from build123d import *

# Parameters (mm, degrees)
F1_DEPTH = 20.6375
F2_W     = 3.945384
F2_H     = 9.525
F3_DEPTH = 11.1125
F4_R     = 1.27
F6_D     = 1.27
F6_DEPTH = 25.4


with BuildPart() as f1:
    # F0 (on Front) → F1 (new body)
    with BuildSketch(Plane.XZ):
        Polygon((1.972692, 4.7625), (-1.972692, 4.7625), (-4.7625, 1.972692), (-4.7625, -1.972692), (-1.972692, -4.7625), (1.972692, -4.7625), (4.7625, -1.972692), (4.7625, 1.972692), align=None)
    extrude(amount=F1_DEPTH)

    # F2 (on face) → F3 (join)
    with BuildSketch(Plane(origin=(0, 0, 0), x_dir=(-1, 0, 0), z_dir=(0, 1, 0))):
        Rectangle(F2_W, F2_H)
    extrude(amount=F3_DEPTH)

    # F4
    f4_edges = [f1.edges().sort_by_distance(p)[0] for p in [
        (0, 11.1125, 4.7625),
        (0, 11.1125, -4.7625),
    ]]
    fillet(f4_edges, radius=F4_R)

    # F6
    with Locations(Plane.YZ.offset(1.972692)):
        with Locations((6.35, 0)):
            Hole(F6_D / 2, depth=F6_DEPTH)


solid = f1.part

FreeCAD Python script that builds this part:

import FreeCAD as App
import Part
import Sketcher
from FreeCAD import Vector
Q = App.Units.Quantity


def edges_at(feature, points):
    """Names of the edges that pass closest to the given points."""
    edges = feature.Shape.Edges
    near = lambda p: min(range(len(edges)), key=lambda i: edges[i].distToShape(Part.Vertex(*p))[0])
    return sorted({f"Edge{near(p) + 1}" for p in points})

doc = App.newDocument("Part")
body = doc.addObject("PartDesign::Body", "Body")

sketch1 = body.newObject("Sketcher::SketchObject", "Sketch")
sketch1.AttachmentSupport = (doc.getObject("XZ_Plane"), [""])
sketch1.MapMode = "FlatFace"
sketch1.addGeometry([
    Part.LineSegment(Vector(2, 4.8, 0), Vector(-2, 4.8, 0)),
    Part.LineSegment(Vector(-2, 4.8, 0), Vector(-4.8, 2, 0)),
    Part.LineSegment(Vector(-4.8, 2, 0), Vector(-4.8, -2, 0)),
    Part.LineSegment(Vector(-4.8, -2, 0), Vector(-2, -4.8, 0)),
    Part.LineSegment(Vector(-2, -4.8, 0), Vector(2, -4.8, 0)),
    Part.LineSegment(Vector(2, -4.8, 0), Vector(4.8, -2, 0)),
    Part.LineSegment(Vector(4.8, -2, 0), Vector(4.8, 2, 0)),
    Part.LineSegment(Vector(4.8, 2, 0), Vector(2, 4.8, 0)),
], False)
sketch1.addConstraint([
    Sketcher.Constraint("Coincident", 0, 2, 1, 1),
    Sketcher.Constraint("Coincident", 1, 2, 2, 1),
    Sketcher.Constraint("Coincident", 2, 2, 3, 1),
    Sketcher.Constraint("Coincident", 3, 2, 4, 1),
    Sketcher.Constraint("Coincident", 4, 2, 5, 1),
    Sketcher.Constraint("Coincident", 5, 2, 6, 1),
    Sketcher.Constraint("Coincident", 6, 2, 7, 1),
    Sketcher.Constraint("Coincident", 7, 2, 0, 1),
    Sketcher.Constraint("Horizontal", 0),
    Sketcher.Constraint("Vertical", 2),
    Sketcher.Constraint("Horizontal", 4),
    Sketcher.Constraint("Vertical", 6),
    Sketcher.Constraint("Symmetric", 0, 2, 4, 2, -1, 1),
    Sketcher.Constraint("Symmetric", 1, 2, 5, 2, -1, 1),
    Sketcher.Constraint("Perpendicular", 1, 3),
    Sketcher.Constraint("Perpendicular", 5, 7),
    Sketcher.Constraint("Horizontal", 2, 2, 5, 2),
    Sketcher.Constraint("Horizontal", 1, 2, 6, 2),
    Sketcher.Constraint("Vertical", 0, 2, 3, 2),
    Sketcher.Constraint("Equal", 4, 2),
    Sketcher.Constraint("DistanceY", -1, 1, 0, 2, Q("0.1875 in")),
    Sketcher.Constraint("DistanceX", 0, 2, 0, 1, Q("3.945384 mm")),
])
pad1 = body.newObject("PartDesign::Pad", "Pad")
pad1.Profile = sketch1
pad1.Length = Q("0.8125 in")

sketch2 = body.newObject("Sketcher::SketchObject", "Sketch001")
sketch2.AttachmentSupport = (doc.getObject("XZ_Plane"), [""])
sketch2.MapMode = "FlatFace"
sketch2.addGeometry([
    Part.LineSegment(Vector(2, 4.8, 0), Vector(2, -4.8, 0)),
    Part.LineSegment(Vector(2, -4.8, 0), Vector(-2, -4.8, 0)),
    Part.LineSegment(Vector(-2, -4.8, 0), Vector(-2, 4.8, 0)),
    Part.LineSegment(Vector(-2, 4.8, 0), Vector(2, 4.8, 0)),
], False)
sketch2.addConstraint([
    Sketcher.Constraint("Coincident", 0, 2, 1, 1),
    Sketcher.Constraint("Coincident", 1, 2, 2, 1),
    Sketcher.Constraint("Coincident", 2, 2, 3, 1),
    Sketcher.Constraint("Coincident", 3, 2, 0, 1),
    Sketcher.Constraint("Vertical", 0),
    Sketcher.Constraint("Horizontal", 1),
    Sketcher.Constraint("Vertical", 2),
    Sketcher.Constraint("Horizontal", 3),
    Sketcher.Constraint("Symmetric", 0, 2, 2, 2, -1, 1),
    Sketcher.Constraint("DistanceY", 0, 2, 0, 1, Q("0.375 in")),
    Sketcher.Constraint("DistanceX", 1, 2, 1, 1, Q("3.945384 mm")),
])
pad2 = body.newObject("PartDesign::Pad", "Pad001")
pad2.Profile = sketch2
pad2.Length = Q("0.4375 in")
pad2.Reversed = True
doc.recompute()

fillet = body.newObject("PartDesign::Fillet", "Fillet")
fillet.Base = (pad2, edges_at(pad2, [(0, 11.113, 4.763), (0, 11.113, -4.763)]))
fillet.Radius = Q("0.05 in")

sketch3 = body.newObject("Sketcher::SketchObject", "Sketch002")
sketch3.AttachmentSupport = (doc.getObject("YZ_Plane"), [""])
sketch3.MapMode = "FlatFace"
sketch3.AttachmentOffset = App.Placement(Vector(0, 0, 1.972692), App.Rotation())
sketch3.addGeometry(Part.Circle(Vector(6.3, 0, 0), Vector(0, 0, 1), 0.6), False)
sketch3.addConstraint([
    Sketcher.Constraint("PointOnObject", 0, 3, -1),
    Sketcher.Constraint("Diameter", 0, Q("0.05 in")),
    Sketcher.Constraint("DistanceX", -1, 1, 0, 3, Q("0.25 in")),
])
doc.recompute()
hole = body.newObject("PartDesign::Hole", "Hole")
hole.Profile = sketch3
hole.ThreadType = "None"
hole.Diameter = Q("0.05 in")
hole.DepthType = "Dimension"
hole.Depth = Q("1 in")
hole.DrillPoint = "Flat"

doc.recompute()
